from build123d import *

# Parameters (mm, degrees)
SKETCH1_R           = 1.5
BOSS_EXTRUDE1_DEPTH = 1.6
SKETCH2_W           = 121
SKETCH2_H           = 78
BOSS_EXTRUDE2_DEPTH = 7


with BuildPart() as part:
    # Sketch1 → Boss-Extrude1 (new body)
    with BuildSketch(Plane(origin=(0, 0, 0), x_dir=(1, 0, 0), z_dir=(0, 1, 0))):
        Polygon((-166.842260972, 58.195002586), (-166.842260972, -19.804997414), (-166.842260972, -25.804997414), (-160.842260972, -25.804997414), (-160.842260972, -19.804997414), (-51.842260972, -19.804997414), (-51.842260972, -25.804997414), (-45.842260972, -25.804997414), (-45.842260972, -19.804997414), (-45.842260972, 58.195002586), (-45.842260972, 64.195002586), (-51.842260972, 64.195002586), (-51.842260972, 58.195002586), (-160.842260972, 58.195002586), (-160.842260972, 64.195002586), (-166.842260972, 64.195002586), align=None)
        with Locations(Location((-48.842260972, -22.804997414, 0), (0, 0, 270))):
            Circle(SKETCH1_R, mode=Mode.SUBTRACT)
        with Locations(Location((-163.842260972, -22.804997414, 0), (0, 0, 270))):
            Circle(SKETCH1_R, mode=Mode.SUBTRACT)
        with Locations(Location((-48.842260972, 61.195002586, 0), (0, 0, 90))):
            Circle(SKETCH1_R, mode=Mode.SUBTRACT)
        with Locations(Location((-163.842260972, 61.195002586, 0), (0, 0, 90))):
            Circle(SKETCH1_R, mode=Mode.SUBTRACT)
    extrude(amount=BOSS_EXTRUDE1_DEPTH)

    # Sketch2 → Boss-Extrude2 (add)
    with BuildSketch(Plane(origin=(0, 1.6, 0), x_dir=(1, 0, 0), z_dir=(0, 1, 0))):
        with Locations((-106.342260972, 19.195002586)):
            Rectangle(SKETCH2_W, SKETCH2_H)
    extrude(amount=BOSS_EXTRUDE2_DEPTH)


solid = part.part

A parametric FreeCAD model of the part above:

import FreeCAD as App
import Part
import Sketcher
Q = App.Units.Quantity

doc = App.newDocument("Part")
params = doc.addObject("Spreadsheet::Sheet", "Params")
for row, (alias, value) in enumerate([
    ("sketch1_diameter", "3 mm"),
    ("sketch1_width", "6 mm"),
    ("sketch1_width2", "109 mm"),
    ("sketch1_height", "90 mm"),
    ("pad1_length", "1.6 mm"),
    ("sketch2_width", "121 mm"),
    ("sketch2_height", "78 mm"),
    ("pad2_length", "7 mm"),
], start=1):
    params.set(f"A{row}", alias)
    params.set(f"B{row}", "=" + value)
    params.setAlias(f"B{row}", alias)

body = doc.addObject("PartDesign::Body", "Body")

# Sketch on XZ plane
sketch1 = body.newObject("Sketcher::SketchObject", "Sketch")
sketch1.AttachmentSupport = (doc.getObject("XZ_Plane"), [""])
sketch1.MapMode = "FlatFace"
sketch1.addGeometry([
    Part.LineSegment(App.Vector(-166.8, 25.8, 0), App.Vector(-160.8, 25.8, 0)),  # 0
    Part.LineSegment(App.Vector(-160.8, 25.8, 0), App.Vector(-160.8, 19.8, 0)),  # 1
    Part.LineSegment(App.Vector(-160.8, 19.8, 0), App.Vector(-51.8, 19.8, 0)),  # 2
    Part.LineSegment(App.Vector(-51.8, 19.8, 0), App.Vector(-51.8, 25.8, 0)),  # 3
    Part.LineSegment(App.Vector(-51.8, 25.8, 0), App.Vector(-45.8, 25.8, 0)),  # 4
    Part.LineSegment(App.Vector(-45.8, 25.8, 0), App.Vector(-45.8, -64.2, 0)),  # 5
    Part.LineSegment(App.Vector(-45.8, -64.2, 0), App.Vector(-51.8, -64.2, 0)),  # 6
    Part.LineSegment(App.Vector(-51.8, -64.2, 0), App.Vector(-51.8, -58.2, 0)),  # 7
    Part.LineSegment(App.Vector(-51.8, -58.2, 0), App.Vector(-160.8, -58.2, 0)),  # 8
    Part.LineSegment(App.Vector(-160.8, -58.2, 0), App.Vector(-160.8, -64.2, 0)),  # 9
    Part.LineSegment(App.Vector(-160.8, -64.2, 0), App.Vector(-166.8, -64.2, 0)),  # 10
    Part.LineSegment(App.Vector(-166.8, -64.2, 0), App.Vector(-166.8, 25.8, 0)),  # 11
    Part.Circle(App.Vector(-163.8, 22.8, 0), App.Vector(0, 0, 1), 1.5),  # 12
    Part.Circle(App.Vector(-48.8, 22.8, 0), App.Vector(0, 0, 1), 1.5),  # 13
    Part.Circle(App.Vector(-163.8, -61.2, 0), App.Vector(0, 0, 1), 1.5),  # 14
    Part.Circle(App.Vector(-48.8, -61.2, 0), App.Vector(0, 0, 1), 1.5),  # 15
], False)
sketch1.addConstraint([
    Sketcher.Constraint("Coincident", 0, 2, 1, 1),
    Sketcher.Constraint("Coincident", 1, 2, 2, 1),
    Sketcher.Constraint("Coincident", 2, 2, 3, 1),
    Sketcher.Constraint("Coincident", 3, 2, 4, 1),
    Sketcher.Constraint("Coincident", 4, 2, 5, 1),
    Sketcher.Constraint("Coincident", 5, 2, 6, 1),
    Sketcher.Constraint("Coincident", 6, 2, 7, 1),
    Sketcher.Constraint("Coincident", 7, 2, 8, 1),
    Sketcher.Constraint("Coincident", 8, 2, 9, 1),
    Sketcher.Constraint("Coincident", 9, 2, 10, 1),
    Sketcher.Constraint("Coincident", 10, 2, 11, 1),
    Sketcher.Constraint("Coincident", 11, 2, 0, 1),
    Sketcher.Constraint("Horizontal", 0),
    Sketcher.Constraint("Vertical", 1),
    Sketcher.Constraint("Horizontal", 2),
    Sketcher.Constraint("Vertical", 3),
    Sketcher.Constraint("Horizontal", 4),
    Sketcher.Constraint("Vertical", 5),
    Sketcher.Constraint("Horizontal", 6),
    Sketcher.Constraint("Vertical", 7),
    Sketcher.Constraint("Horizontal", 8),
    Sketcher.Constraint("Vertical", 9),
    Sketcher.Constraint("Horizontal", 10),
    Sketcher.Constraint("Vertical", 11),
    Sketcher.Constraint("Equal", 12, 13),
    Sketcher.Constraint("Equal", 13, 14),
    Sketcher.Constraint("Equal", 14, 15),
    Sketcher.Constraint("Horizontal", 12, 3, 13, 3),
    Sketcher.Constraint("Horizontal", 14, 3, 15, 3),
    Sketcher.Constraint("Horizontal", 0, 2, 3, 2),
    Sketcher.Constraint("Horizontal", 6, 2, 9, 2),
    Sketcher.Constraint("Vertical", 12, 3, 14, 3),
    Sketcher.Constraint("Vertical", 13, 3, 15, 3),
    Sketcher.Constraint("Vertical", 3, 2, 6, 2),
    Sketcher.Constraint("Vertical", 1, 2, 8, 2),
    Sketcher.Constraint("Equal", 0, 4),
    Sketcher.Constraint("Equal", 10, 1),
    Sketcher.Constraint("Equal", 3, 7),
    Sketcher.Constraint("Diameter", 12, Q("3 mm")),
    Sketcher.Constraint("DistanceX", 0, 1, 0, 2, Q("6 mm")),
    Sketcher.Constraint("DistanceX", 2, 1, 2, 2, Q("109 mm")),
    Sketcher.Constraint("DistanceY", 5, 2, 5, 1, Q("90 mm")),
    Sketcher.Constraint("DistanceX", 12, 3, 13, 3, Q("115 mm")),
    Sketcher.Constraint("DistanceY", 14, 3, 12, 3, Q("84 mm")),
    Sketcher.Constraint("DistanceX", 12, 3, 0, 2, Q("3 mm")),
    Sketcher.Constraint("DistanceY", 12, 3, 0, 2, Q("3 mm")),
    Sketcher.Constraint("DistanceX", 12, 3, -1, 1, Q("163.842261 mm")),
    Sketcher.Constraint("DistanceY", -1, 1, 12, 3, Q("22.804997 mm")),
])
sketch1.setExpression("Constraints[38]", "Params.sketch1_diameter")
sketch1.setExpression("Constraints[39]", "Params.sketch1_width")
sketch1.setExpression("Constraints[40]", "Params.sketch1_width2")
sketch1.setExpression("Constraints[41]", "Params.sketch1_height")
pad1 = body.newObject("PartDesign::Pad", "Pad")
pad1.Profile = sketch1
pad1.setExpression("Length", "Params.pad1_length")
pad1.Reversed = True

# Sketch on XZ plane
sketch2 = body.newObject("Sketcher::SketchObject", "Sketch001")
sketch2.AttachmentSupport = (doc.getObject("XZ_Plane"), [""])
sketch2.MapMode = "FlatFace"
sketch2.AttachmentOffset = App.Placement(App.Vector(0, 0, -1.6), App.Rotation())
sketch2.addGeometry([
    Part.LineSegment(App.Vector(-167, -58, 0), App.Vector(-167, 20, 0)),
    Part.LineSegment(App.Vector(-167, 20, 0), App.Vector(-46, 20, 0)),
    Part.LineSegment(App.Vector(-46, 20, 0), App.Vector(-46, -58, 0)),
    Part.LineSegment(App.Vector(-46, -58, 0), App.Vector(-167, -58, 0)),
], False)
sketch2.addConstraint([
    Sketcher.Constraint("Coincident", 0, 2, 1, 1),
    Sketcher.Constraint("Coincident", 1, 2, 2, 1),
    Sketcher.Constraint("Coincident", 2, 2, 3, 1),
    Sketcher.Constraint("Coincident", 3, 2, 0, 1),
    Sketcher.Constraint("Vertical", 0),
    Sketcher.Constraint("Horizontal", 1),
    Sketcher.Constraint("Vertical", 2),
    Sketcher.Constraint("Horizontal", 3),
    Sketcher.Constraint("DistanceX", 1, 1, 1, 2, Q("121 mm")),
    Sketcher.Constraint("DistanceY", 0, 1, 0, 2, Q("78 mm")),
    Sketcher.Constraint("DistanceX", 0, 2, -1, 1, Q("166.842261 mm")),
    Sketcher.Constraint("DistanceY", -1, 1, 0, 2, Q("19.804997 mm")),
])
sketch2.setExpression("Constraints[8]", "Params.sketch2_width")
sketch2.setExpression("Constraints[9]", "Params.sketch2_height")
pad2 = body.newObject("PartDesign::Pad", "Pad001")
pad2.Profile = sketch2
pad2.setExpression("Length", "Params.pad2_length")
pad2.Reversed = True

doc.recompute()
